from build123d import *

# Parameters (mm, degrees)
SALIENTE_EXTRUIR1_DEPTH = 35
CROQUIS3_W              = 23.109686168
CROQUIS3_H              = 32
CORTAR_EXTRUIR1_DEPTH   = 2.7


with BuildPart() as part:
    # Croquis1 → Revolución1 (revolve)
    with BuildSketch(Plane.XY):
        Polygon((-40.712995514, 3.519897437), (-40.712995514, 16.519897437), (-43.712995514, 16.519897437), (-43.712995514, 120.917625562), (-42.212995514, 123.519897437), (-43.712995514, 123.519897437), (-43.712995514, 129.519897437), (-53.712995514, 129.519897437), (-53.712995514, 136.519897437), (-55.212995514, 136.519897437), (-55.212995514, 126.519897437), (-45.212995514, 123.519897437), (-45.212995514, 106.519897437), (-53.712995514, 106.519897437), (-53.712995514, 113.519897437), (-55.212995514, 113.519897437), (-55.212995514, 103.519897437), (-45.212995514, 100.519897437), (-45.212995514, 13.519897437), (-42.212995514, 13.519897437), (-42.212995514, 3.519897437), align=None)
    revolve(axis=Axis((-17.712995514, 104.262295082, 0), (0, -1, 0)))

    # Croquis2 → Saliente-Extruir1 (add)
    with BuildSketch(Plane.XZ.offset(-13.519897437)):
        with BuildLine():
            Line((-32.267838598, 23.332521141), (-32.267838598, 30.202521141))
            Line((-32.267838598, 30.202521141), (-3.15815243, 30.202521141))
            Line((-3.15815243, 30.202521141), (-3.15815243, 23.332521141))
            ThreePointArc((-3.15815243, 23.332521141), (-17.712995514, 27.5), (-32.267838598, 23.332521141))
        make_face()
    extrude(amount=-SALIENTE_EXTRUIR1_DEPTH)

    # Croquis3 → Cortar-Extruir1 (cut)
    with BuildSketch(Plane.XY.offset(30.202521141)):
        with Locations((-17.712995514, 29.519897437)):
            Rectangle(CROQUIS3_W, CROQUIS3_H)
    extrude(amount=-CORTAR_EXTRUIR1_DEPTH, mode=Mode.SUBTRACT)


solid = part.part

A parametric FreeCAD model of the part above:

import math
import FreeCAD as App
import Part
import Sketcher
Q = App.Units.Quantity


def add_polygon(sketch, points):
    """Adds a closed chain of lines whose ends are joined by coincident constraints."""
    first, n = sketch.GeometryCount, len(points)
    for a, b in zip(points, points[1:] + points[:1]):
        sketch.addGeometry(Part.LineSegment(App.Vector(*a, 0), App.Vector(*b, 0)), False)
    for i in range(n):
        sketch.addConstraint(Sketcher.Constraint("Coincident", first + i, 2, first + (i + 1) % n, 1))

doc = App.newDocument("Part")
body = doc.addObject("PartDesign::Body", "Body")

sketch1 = body.newObject("Sketcher::SketchObject", "Sketch")
sketch1.AttachmentSupport = (doc.getObject("XY_Plane"), [""])
sketch1.MapMode = "FlatFace"
add_polygon(sketch1, [(-40.712996, 3.519897), (-40.712996, 16.519897), (-43.712996, 16.519897), (-43.712996, 120.917626), (-42.212996, 123.519897), (-43.712996, 123.519897), (-43.712996, 129.519897), (-53.712996, 129.519897), (-53.712996, 136.519897), (-55.212996, 136.519897), (-55.212996, 126.519897), (-45.212996, 123.519897), (-45.212996, 106.519897), (-53.712996, 106.519897), (-53.712996, 113.519897), (-55.212996, 113.519897), (-55.212996, 103.519897), (-45.212996, 100.519897), (-45.212996, 13.519897), (-42.212996, 13.519897), (-42.212996, 3.519897)])
sketch1.addGeometry(Part.LineSegment(App.Vector(-17.712996, 136.519897, 0), App.Vector(-17.712996, 3.519897, 0)), True)
sketch1.addConstraint(Sketcher.Constraint("Vertical", 0))
sketch1.addConstraint(Sketcher.Constraint("Horizontal", 1))
sketch1.addConstraint(Sketcher.Constraint("Vertical", 2))
sketch1.addConstraint(Sketcher.Constraint("Horizontal", 4))
sketch1.addConstraint(Sketcher.Constraint("Vertical", 5))
sketch1.addConstraint(Sketcher.Constraint("Horizontal", 6))
sketch1.addConstraint(Sketcher.Constraint("Vertical", 7))
sketch1.addConstraint(Sketcher.Constraint("Horizontal", 8))
sketch1.addConstraint(Sketcher.Constraint("Vertical", 9))
sketch1.addConstraint(Sketcher.Constraint("Vertical", 11))
sketch1.addConstraint(Sketcher.Constraint("Horizontal", 12))
sketch1.addConstraint(Sketcher.Constraint("Vertical", 13))
sketch1.addConstraint(Sketcher.Constraint("Horizontal", 14))
sketch1.addConstraint(Sketcher.Constraint("Vertical", 15))
sketch1.addConstraint(Sketcher.Constraint("Vertical", 17))
sketch1.addConstraint(Sketcher.Constraint("Horizontal", 18))
sketch1.addConstraint(Sketcher.Constraint("Vertical", 19))
sketch1.addConstraint(Sketcher.Constraint("Horizontal", 20))
sketch1.addConstraint(Sketcher.Constraint("Vertical", 21))
sketch1.addConstraint(Sketcher.Constraint("Parallel", 10, 16))
sketch1.addConstraint(Sketcher.Constraint("Horizontal", 4, 2, 10, 2))
sketch1.addConstraint(Sketcher.Constraint("Horizontal", 8, 2, 21, 1))
sketch1.addConstraint(Sketcher.Constraint("Horizontal", 20, 2, 21, 2))
sketch1.addConstraint(Sketcher.Constraint("Vertical", 2, 2, 4, 2))
sketch1.addConstraint(Sketcher.Constraint("Vertical", 7, 2, 12, 2))
sketch1.addConstraint(Sketcher.Constraint("Vertical", 9, 2, 14, 2))
sketch1.addConstraint(Sketcher.Constraint("Vertical", 11, 2, 16, 2))
sketch1.addConstraint(Sketcher.Constraint("Vertical", 3, 2, 18, 2))
sketch1.addConstraint(Sketcher.Constraint("Equal", 4, 8))
sketch1.addConstraint(Sketcher.Constraint("Equal", 1, 18))
sketch1.addConstraint(Sketcher.Constraint("Equal", 14, 20))
sketch1.addConstraint(Sketcher.Constraint("Equal", 6, 9))
sketch1.addConstraint(Sketcher.Constraint("Equal", 7, 13))
sketch1.addConstraint(Sketcher.Constraint("Equal", 9, 15))
sketch1.addConstraint(Sketcher.Constraint("Equal", 15, 19))
sketch1.addConstraint(Sketcher.Constraint("DistanceX", 1, 2, 1, 1, Q("3 mm")))
sketch1.addConstraint(Sketcher.Constraint("DistanceX", 6, 2, 6, 1, Q("10 mm")))
sketch1.addConstraint(Sketcher.Constraint("DistanceY", 0, 1, 0, 2, Q("13 mm")))
sketch1.addConstraint(Sketcher.Constraint("DistanceY", 5, 1, 5, 2, Q("6 mm")))
sketch1.addConstraint(Sketcher.Constraint("DistanceY", 7, 1, 7, 2, Q("7 mm")))
sketch1.addConstraint(Sketcher.Constraint("DistanceY", 11, 2, 11, 1, Q("17 mm")))
sketch1.addConstraint(Sketcher.Constraint("DistanceY", 17, 2, 17, 1, Q("87 mm")))
sketch1.addConstraint(Sketcher.Constraint("DistanceX", 5, 2, 21, 1, Q("26 mm")))
sketch1.addConstraint(Sketcher.Constraint("Angle", 3, Q("60.040017 deg")))
sketch1.addConstraint(Sketcher.Constraint("DistanceX", 0, 2, -1, 1, Q("40.712996 mm")))
sketch1.addConstraint(Sketcher.Constraint("DistanceY", -1, 1, 0, 2, Q("16.519897 mm")))
revolution = body.newObject("PartDesign::Revolution", "Revolution")
revolution.Profile = sketch1
revolution.ReferenceAxis = (sketch1, ["Axis0"])
revolution.Angle = 360

sketch2 = body.newObject("Sketcher::SketchObject", "Sketch001")
sketch2.AttachmentSupport = (doc.getObject("XZ_Plane"), [""])
sketch2.MapMode = "FlatFace"
sketch2.AttachmentOffset = App.Placement(App.Vector(0, 0, -13.519897), App.Rotation())
sketch2.addGeometry(Part.LineSegment(App.Vector(-32.267839, 30.202521, 0), App.Vector(-32.267839, 23.332521, 0)), False)
sketch2.addGeometry(Part.ArcOfCircle(Part.Circle(App.Vector(-17.712996, 0, 0), App.Vector(0, 0, 1), 27.5), math.radians(58.044056), math.radians(121.955944)), False)
sketch2.addGeometry(Part.LineSegment(App.Vector(-3.158152, 23.332521, 0), App.Vector(-3.158152, 30.202521, 0)), False)
sketch2.addGeometry(Part.LineSegment(App.Vector(-3.158152, 30.202521, 0), App.Vector(-32.267839, 30.202521, 0)), False)
sketch2.addConstraint(Sketcher.Constraint("Coincident", 0, 2, 1, 2))
sketch2.addConstraint(Sketcher.Constraint("Coincident", 1, 1, 2, 1))
sketch2.addConstraint(Sketcher.Constraint("Coincident", 2, 2, 3, 1))
sketch2.addConstraint(Sketcher.Constraint("Coincident", 3, 2, 0, 1))
sketch2.addConstraint(Sketcher.Constraint("Vertical", 0))
sketch2.addConstraint(Sketcher.Constraint("Vertical", 2))
sketch2.addConstraint(Sketcher.Constraint("Horizontal", 3))
sketch2.addConstraint(Sketcher.Constraint("PointOnObject", 1, 3, -1))
sketch2.addConstraint(Sketcher.Constraint("Horizontal", 0, 2, 1, 1))
sketch2.addConstraint(Sketcher.Constraint("Radius", 1, Q("27.5 mm")))
sketch2.addConstraint(Sketcher.Constraint("DistanceY", 0, 2, 0, 1, Q("6.87 mm")))
sketch2.addConstraint(Sketcher.Constraint("DistanceX", 3, 2, 3, 1, Q("29.109686 mm")))
sketch2.addConstraint(Sketcher.Constraint("DistanceX", 0, 2, -1, 1, Q("32.267839 mm")))
pad1 = body.newObject("PartDesign::Pad", "Pad")
pad1.Profile = sketch2
pad1.Length = 35
pad1.Reversed = True

sketch3 = body.newObject("Sketcher::SketchObject", "Sketch002")
sketch3.AttachmentSupport = (doc.getObject("XY_Plane"), [""])
sketch3.MapMode = "FlatFace"
sketch3.AttachmentOffset = App.Placement(App.Vector(0, 0, 30.202521), App.Rotation())
add_polygon(sketch3, [(-29.267839, 45.519897), (-29.267839, 13.519897), (-6.158152, 13.519897), (-6.158152, 45.519897)])
sketch3.addConstraint(Sketcher.Constraint("Vertical", 0))
sketch3.addConstraint(Sketcher.Constraint("Horizontal", 1))
sketch3.addConstraint(Sketcher.Constraint("Vertical", 2))
sketch3.addConstraint(Sketcher.Constraint("Horizontal", 3))
sketch3.addConstraint(Sketcher.Constraint("DistanceY", 0, 2, 0, 1, Q("32 mm")))
sketch3.addConstraint(Sketcher.Constraint("DistanceX", 1, 1, 1, 2, Q("23.109686 mm")))
sketch3.addConstraint(Sketcher.Constraint("DistanceX", 0, 2, -1, 1, Q("29.267839 mm")))
sketch3.addConstraint(Sketcher.Constraint("DistanceY", -1, 1, 0, 2, Q("13.519897 mm")))
pocket1 = body.newObject("PartDesign::Pocket", "Pocket")
pocket1.Profile = sketch3
pocket1.Length = 2.7

doc.recompute()
